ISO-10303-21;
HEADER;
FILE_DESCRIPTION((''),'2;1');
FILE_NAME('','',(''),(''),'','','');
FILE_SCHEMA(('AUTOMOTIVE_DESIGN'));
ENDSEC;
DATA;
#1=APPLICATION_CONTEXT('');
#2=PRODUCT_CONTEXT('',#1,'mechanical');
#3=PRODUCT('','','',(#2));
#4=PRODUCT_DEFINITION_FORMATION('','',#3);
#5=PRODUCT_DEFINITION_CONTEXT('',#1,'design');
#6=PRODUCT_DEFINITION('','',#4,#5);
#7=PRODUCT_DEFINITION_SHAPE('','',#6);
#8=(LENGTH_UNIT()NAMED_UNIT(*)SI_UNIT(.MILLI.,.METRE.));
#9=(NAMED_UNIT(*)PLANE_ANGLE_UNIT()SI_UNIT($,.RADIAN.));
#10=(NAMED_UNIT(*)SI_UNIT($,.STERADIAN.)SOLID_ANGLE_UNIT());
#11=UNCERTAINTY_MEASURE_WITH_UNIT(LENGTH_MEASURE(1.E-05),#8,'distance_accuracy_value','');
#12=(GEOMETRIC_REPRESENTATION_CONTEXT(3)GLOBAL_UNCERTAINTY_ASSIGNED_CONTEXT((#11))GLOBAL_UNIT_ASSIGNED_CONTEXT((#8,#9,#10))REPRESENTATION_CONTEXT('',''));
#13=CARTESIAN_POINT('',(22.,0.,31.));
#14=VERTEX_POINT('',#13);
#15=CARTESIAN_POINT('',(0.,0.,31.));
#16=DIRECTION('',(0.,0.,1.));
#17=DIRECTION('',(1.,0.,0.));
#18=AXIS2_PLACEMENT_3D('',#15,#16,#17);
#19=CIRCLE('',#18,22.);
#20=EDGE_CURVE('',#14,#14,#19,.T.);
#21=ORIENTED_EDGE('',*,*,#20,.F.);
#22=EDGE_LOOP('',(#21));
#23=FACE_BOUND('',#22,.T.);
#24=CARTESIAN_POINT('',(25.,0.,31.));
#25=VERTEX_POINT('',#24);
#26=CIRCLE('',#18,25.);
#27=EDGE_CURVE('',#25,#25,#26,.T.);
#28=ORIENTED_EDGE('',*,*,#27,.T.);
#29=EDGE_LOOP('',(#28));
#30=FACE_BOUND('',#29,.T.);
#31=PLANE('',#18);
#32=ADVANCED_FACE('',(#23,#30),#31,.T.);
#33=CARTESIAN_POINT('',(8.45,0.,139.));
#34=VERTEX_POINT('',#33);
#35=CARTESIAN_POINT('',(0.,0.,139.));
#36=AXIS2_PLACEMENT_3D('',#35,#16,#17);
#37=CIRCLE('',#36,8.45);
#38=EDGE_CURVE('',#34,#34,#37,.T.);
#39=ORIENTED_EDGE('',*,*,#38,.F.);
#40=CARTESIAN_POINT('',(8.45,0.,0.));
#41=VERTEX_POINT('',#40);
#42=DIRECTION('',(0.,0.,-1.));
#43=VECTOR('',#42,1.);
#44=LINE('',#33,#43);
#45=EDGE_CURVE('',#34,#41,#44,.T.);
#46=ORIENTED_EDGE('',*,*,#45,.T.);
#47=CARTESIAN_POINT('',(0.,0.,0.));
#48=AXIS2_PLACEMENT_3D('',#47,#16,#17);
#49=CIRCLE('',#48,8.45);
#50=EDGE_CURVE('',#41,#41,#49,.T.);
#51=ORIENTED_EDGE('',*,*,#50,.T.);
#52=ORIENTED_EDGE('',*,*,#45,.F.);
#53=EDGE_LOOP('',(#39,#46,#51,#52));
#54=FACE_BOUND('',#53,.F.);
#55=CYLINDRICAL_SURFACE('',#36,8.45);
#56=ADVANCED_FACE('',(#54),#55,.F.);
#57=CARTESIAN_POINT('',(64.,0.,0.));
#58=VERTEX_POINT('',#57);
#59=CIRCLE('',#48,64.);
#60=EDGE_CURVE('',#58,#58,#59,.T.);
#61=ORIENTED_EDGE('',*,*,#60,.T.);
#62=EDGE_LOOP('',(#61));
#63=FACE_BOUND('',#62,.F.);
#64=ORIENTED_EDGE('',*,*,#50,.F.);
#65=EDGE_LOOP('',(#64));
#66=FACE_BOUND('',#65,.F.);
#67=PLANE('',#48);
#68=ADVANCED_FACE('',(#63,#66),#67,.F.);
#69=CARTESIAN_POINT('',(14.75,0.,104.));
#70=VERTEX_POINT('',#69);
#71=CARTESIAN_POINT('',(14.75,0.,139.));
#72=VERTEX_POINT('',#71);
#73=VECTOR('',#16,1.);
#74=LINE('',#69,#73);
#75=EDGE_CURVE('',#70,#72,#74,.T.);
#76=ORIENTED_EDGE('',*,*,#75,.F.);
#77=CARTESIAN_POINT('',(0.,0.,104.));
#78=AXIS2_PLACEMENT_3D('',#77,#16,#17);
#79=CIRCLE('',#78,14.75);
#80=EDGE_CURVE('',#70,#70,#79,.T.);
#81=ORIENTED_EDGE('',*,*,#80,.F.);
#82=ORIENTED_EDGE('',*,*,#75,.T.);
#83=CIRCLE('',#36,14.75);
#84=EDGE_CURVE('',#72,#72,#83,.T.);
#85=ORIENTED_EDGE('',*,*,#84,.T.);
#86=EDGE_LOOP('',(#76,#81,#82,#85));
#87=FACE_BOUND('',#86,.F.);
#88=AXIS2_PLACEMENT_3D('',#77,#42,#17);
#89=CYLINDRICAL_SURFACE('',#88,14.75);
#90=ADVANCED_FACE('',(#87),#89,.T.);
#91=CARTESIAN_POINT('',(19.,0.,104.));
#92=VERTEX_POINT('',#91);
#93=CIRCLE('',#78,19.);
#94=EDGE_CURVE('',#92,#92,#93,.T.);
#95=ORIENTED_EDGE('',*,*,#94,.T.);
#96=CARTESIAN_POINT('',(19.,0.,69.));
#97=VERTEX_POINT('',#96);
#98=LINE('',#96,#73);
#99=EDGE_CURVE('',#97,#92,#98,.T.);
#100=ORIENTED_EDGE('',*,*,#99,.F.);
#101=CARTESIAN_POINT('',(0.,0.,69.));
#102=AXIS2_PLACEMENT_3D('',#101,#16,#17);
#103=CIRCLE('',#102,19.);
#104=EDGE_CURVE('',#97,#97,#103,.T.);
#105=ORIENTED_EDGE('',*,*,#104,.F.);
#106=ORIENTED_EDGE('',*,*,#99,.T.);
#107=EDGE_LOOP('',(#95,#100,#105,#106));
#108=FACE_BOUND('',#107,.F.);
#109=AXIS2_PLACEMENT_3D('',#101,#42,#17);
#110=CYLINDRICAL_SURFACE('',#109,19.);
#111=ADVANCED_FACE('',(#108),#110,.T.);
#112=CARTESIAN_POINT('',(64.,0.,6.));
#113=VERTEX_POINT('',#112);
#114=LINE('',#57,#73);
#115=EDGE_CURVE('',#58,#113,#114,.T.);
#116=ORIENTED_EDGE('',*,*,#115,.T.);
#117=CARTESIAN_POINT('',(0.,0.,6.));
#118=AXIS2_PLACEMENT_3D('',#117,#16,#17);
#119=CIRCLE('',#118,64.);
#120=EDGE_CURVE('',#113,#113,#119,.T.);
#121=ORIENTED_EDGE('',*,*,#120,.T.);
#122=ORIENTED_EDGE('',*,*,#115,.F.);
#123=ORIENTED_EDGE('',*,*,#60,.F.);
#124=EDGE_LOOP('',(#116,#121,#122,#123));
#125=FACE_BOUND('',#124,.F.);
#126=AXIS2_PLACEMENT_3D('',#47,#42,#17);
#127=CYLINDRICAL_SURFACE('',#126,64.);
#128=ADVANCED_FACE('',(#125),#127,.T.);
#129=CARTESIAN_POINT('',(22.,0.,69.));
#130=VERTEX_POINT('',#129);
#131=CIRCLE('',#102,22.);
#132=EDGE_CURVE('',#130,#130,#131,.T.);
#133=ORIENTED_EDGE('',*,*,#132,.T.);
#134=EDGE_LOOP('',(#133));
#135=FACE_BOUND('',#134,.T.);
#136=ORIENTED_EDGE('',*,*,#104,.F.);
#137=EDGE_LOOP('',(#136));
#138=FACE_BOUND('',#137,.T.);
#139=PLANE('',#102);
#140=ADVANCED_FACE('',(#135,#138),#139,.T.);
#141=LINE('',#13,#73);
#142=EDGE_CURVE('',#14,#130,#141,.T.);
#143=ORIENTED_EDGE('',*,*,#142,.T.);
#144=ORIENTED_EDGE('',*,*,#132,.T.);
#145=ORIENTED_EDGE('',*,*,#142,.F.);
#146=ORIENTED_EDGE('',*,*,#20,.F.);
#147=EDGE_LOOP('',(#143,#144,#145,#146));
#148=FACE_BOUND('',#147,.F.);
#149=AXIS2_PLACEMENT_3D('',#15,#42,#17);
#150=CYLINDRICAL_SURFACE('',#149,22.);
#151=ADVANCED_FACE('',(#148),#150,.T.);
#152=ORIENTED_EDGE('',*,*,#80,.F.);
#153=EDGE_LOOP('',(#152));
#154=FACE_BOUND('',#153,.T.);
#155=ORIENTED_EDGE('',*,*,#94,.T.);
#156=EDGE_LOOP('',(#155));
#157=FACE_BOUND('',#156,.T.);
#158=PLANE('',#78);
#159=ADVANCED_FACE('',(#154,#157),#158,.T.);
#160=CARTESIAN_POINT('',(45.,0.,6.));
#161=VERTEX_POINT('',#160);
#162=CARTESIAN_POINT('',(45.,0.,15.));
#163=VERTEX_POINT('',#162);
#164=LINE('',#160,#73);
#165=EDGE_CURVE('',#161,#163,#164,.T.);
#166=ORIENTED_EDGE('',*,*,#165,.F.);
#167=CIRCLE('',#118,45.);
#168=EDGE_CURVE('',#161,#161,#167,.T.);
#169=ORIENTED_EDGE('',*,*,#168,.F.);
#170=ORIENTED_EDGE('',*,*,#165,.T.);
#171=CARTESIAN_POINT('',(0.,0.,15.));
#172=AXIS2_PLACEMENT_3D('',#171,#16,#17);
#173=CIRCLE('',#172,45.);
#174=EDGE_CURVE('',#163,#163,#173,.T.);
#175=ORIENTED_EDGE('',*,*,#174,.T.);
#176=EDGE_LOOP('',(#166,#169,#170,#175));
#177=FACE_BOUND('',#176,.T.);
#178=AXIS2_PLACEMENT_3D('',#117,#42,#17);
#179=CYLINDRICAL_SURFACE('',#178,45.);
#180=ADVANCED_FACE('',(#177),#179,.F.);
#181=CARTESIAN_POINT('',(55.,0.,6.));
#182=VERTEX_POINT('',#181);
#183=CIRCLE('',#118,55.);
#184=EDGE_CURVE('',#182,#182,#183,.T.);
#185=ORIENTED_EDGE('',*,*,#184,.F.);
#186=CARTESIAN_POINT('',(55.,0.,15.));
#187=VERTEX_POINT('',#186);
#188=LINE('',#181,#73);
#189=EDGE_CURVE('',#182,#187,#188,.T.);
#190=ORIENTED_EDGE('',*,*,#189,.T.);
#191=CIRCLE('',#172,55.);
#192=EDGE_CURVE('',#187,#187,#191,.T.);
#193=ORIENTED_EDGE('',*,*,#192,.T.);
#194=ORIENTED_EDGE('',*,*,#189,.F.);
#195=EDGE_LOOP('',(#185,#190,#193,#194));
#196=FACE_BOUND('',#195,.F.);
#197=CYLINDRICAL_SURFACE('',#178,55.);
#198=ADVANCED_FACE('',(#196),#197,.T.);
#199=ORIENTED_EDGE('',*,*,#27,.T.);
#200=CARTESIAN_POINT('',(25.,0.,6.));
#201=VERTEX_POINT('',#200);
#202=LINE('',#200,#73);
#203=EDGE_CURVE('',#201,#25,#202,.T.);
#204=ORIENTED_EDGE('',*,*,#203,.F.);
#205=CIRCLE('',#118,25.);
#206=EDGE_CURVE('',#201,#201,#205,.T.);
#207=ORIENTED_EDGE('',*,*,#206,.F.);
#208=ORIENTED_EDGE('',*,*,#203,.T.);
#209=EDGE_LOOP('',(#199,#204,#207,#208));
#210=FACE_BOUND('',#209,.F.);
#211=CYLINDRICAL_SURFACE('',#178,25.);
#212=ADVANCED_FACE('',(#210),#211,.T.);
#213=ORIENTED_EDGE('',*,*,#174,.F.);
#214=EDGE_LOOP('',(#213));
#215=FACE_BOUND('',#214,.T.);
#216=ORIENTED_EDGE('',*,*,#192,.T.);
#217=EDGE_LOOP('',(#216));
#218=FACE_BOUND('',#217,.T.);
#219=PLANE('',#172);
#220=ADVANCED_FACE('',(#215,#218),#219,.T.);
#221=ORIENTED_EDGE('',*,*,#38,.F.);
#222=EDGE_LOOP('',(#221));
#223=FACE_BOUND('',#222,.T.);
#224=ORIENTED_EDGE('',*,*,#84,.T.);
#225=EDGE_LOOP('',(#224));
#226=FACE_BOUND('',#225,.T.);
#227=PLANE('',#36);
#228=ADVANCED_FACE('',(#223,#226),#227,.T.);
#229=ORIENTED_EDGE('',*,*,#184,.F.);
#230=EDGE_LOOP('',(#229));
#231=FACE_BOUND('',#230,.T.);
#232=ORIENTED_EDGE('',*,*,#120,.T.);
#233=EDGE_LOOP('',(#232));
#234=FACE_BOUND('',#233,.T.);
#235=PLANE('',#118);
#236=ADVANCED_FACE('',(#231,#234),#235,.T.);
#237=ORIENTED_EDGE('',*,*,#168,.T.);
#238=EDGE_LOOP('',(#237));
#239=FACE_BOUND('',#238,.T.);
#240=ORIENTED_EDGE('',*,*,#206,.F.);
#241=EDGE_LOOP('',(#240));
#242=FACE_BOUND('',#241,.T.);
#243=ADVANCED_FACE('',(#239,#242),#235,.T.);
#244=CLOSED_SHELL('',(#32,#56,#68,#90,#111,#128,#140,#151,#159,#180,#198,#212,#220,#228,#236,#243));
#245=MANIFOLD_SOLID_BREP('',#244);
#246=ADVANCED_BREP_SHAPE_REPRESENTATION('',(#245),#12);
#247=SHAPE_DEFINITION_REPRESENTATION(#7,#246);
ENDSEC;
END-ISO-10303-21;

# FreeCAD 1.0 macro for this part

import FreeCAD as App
import Part
import Sketcher
Q = App.Units.Quantity

doc = App.newDocument("Part")
body = doc.addObject("PartDesign::Body", "Body")

sketch1 = body.newObject("Sketcher::SketchObject", "Sketch")
sketch1.AttachmentSupport = (doc.getObject("XY_Plane"), [""])
sketch1.MapMode = "FlatFace"
sketch1.addGeometry(Part.Circle(App.Vector(0, 0, 0), App.Vector(0, 0, 1), 64), False)
sketch1.addConstraint(Sketcher.Constraint("Coincident", 0, 3, -1, 1))
sketch1.addConstraint(Sketcher.Constraint("Diameter", 0, Q("128 mm")))
pad1 = body.newObject("PartDesign::Pad", "Pad")
pad1.Profile = sketch1
pad1.Length = 6

sketch2 = body.newObject("Sketcher::SketchObject", "Sketch001")
sketch2.AttachmentSupport = (doc.getObject("XY_Plane"), [""])
sketch2.MapMode = "FlatFace"
sketch2.AttachmentOffset = App.Placement(App.Vector(0, 0, 6), App.Rotation())
sketch2.addGeometry(Part.Circle(App.Vector(0, 0, 0), App.Vector(0, 0, 1), 55), False)
sketch2.addGeometry(Part.Circle(App.Vector(0, 0, 0), App.Vector(0, 0, 1), 45), False)
sketch2.addConstraint(Sketcher.Constraint("Coincident", 0, 3, -1, 1))
sketch2.addConstraint(Sketcher.Constraint("Coincident", 1, 3, -1, 1))
sketch2.addConstraint(Sketcher.Constraint("Diameter", 0, Q("110 mm")))
sketch2.addConstraint(Sketcher.Constraint("Diameter", 1, Q("90 mm")))
pad2 = body.newObject("PartDesign::Pad", "Pad001")
pad2.Profile = sketch2
pad2.Length = 9

sketch3 = body.newObject("Sketcher::SketchObject", "Sketch002")
sketch3.AttachmentSupport = (doc.getObject("XY_Plane"), [""])
sketch3.MapMode = "FlatFace"
sketch3.AttachmentOffset = App.Placement(App.Vector(0, 0, 6), App.Rotation())
sketch3.addGeometry(Part.Circle(App.Vector(0, 0, 0), App.Vector(0, 0, 1), 25), False)
sketch3.addConstraint(Sketcher.Constraint("Coincident", 0, 3, -1, 1))
sketch3.addConstraint(Sketcher.Constraint("Diameter", 0, Q("50 mm")))
pad3 = body.newObject("PartDesign::Pad", "Pad002")
pad3.Profile = sketch3
pad3.Length = 25

sketch4 = body.newObject("Sketcher::SketchObject", "Sketch003")
sketch4.AttachmentSupport = (doc.getObject("XY_Plane"), [""])
sketch4.MapMode = "FlatFace"
sketch4.AttachmentOffset = App.Placement(App.Vector(0, 0, 31), App.Rotation())
sketch4.addGeometry(Part.Circle(App.Vector(0, 0, 0), App.Vector(0, 0, 1), 22), False)
sketch4.addConstraint(Sketcher.Constraint("Coincident", 0, 3, -1, 1))
sketch4.addConstraint(Sketcher.Constraint("Diameter", 0, Q("44 mm")))
pad4 = body.newObject("PartDesign::Pad", "Pad003")
pad4.Profile = sketch4
pad4.Length = 38

sketch5 = body.newObject("Sketcher::SketchObject", "Sketch004")
sketch5.AttachmentSupport = (doc.getObject("XY_Plane"), [""])
sketch5.MapMode = "FlatFace"
sketch5.AttachmentOffset = App.Placement(App.Vector(0, 0, 69), App.Rotation())
sketch5.addGeometry(Part.Circle(App.Vector(0, 0, 0), App.Vector(0, 0, 1), 19), False)
sketch5.addConstraint(Sketcher.Constraint("Coincident", 0, 3, -1, 1))
sketch5.addConstraint(Sketcher.Constraint("Diameter", 0, Q("38 mm")))
pad5 = body.newObject("PartDesign::Pad", "Pad004")
pad5.Profile = sketch5
pad5.Length = 35

sketch6 = body.newObject("Sketcher::SketchObject", "Sketch005")
sketch6.AttachmentSupport = (doc.getObject("XY_Plane"), [""])
sketch6.MapMode = "FlatFace"
sketch6.AttachmentOffset = App.Placement(App.Vector(0, 0, 104), App.Rotation())
sketch6.addGeometry(Part.Circle(App.Vector(0, 0, 0), App.Vector(0, 0, 1), 14.75), False)
sketch6.addConstraint(Sketcher.Constraint("Coincident", 0, 3, -1, 1))
sketch6.addConstraint(Sketcher.Constraint("Diameter", 0, Q("29.5 mm")))
pad6 = body.newObject("PartDesign::Pad", "Pad005")
pad6.Profile = sketch6
pad6.Length = 35

sketch7 = body.newObject("Sketcher::SketchObject", "Sketch006")
sketch7.AttachmentSupport = (doc.getObject("XY_Plane"), [""])
sketch7.MapMode = "FlatFace"
sketch7.AttachmentOffset = App.Placement(App.Vector(0, 0, 139), App.Rotation())
sketch7.addGeometry(Part.Circle(App.Vector(0, 0, 0), App.Vector(0, 0, 1), 8.45), False)
sketch7.addConstraint(Sketcher.Constraint("Coincident", 0, 3, -1, 1))
sketch7.addConstraint(Sketcher.Constraint("Diameter", 0, Q("16.9 mm")))
pocket1 = body.newObject("PartDesign::Pocket", "Pocket")
pocket1.Profile = sketch7
pocket1.Length = 200

doc.recompute()
